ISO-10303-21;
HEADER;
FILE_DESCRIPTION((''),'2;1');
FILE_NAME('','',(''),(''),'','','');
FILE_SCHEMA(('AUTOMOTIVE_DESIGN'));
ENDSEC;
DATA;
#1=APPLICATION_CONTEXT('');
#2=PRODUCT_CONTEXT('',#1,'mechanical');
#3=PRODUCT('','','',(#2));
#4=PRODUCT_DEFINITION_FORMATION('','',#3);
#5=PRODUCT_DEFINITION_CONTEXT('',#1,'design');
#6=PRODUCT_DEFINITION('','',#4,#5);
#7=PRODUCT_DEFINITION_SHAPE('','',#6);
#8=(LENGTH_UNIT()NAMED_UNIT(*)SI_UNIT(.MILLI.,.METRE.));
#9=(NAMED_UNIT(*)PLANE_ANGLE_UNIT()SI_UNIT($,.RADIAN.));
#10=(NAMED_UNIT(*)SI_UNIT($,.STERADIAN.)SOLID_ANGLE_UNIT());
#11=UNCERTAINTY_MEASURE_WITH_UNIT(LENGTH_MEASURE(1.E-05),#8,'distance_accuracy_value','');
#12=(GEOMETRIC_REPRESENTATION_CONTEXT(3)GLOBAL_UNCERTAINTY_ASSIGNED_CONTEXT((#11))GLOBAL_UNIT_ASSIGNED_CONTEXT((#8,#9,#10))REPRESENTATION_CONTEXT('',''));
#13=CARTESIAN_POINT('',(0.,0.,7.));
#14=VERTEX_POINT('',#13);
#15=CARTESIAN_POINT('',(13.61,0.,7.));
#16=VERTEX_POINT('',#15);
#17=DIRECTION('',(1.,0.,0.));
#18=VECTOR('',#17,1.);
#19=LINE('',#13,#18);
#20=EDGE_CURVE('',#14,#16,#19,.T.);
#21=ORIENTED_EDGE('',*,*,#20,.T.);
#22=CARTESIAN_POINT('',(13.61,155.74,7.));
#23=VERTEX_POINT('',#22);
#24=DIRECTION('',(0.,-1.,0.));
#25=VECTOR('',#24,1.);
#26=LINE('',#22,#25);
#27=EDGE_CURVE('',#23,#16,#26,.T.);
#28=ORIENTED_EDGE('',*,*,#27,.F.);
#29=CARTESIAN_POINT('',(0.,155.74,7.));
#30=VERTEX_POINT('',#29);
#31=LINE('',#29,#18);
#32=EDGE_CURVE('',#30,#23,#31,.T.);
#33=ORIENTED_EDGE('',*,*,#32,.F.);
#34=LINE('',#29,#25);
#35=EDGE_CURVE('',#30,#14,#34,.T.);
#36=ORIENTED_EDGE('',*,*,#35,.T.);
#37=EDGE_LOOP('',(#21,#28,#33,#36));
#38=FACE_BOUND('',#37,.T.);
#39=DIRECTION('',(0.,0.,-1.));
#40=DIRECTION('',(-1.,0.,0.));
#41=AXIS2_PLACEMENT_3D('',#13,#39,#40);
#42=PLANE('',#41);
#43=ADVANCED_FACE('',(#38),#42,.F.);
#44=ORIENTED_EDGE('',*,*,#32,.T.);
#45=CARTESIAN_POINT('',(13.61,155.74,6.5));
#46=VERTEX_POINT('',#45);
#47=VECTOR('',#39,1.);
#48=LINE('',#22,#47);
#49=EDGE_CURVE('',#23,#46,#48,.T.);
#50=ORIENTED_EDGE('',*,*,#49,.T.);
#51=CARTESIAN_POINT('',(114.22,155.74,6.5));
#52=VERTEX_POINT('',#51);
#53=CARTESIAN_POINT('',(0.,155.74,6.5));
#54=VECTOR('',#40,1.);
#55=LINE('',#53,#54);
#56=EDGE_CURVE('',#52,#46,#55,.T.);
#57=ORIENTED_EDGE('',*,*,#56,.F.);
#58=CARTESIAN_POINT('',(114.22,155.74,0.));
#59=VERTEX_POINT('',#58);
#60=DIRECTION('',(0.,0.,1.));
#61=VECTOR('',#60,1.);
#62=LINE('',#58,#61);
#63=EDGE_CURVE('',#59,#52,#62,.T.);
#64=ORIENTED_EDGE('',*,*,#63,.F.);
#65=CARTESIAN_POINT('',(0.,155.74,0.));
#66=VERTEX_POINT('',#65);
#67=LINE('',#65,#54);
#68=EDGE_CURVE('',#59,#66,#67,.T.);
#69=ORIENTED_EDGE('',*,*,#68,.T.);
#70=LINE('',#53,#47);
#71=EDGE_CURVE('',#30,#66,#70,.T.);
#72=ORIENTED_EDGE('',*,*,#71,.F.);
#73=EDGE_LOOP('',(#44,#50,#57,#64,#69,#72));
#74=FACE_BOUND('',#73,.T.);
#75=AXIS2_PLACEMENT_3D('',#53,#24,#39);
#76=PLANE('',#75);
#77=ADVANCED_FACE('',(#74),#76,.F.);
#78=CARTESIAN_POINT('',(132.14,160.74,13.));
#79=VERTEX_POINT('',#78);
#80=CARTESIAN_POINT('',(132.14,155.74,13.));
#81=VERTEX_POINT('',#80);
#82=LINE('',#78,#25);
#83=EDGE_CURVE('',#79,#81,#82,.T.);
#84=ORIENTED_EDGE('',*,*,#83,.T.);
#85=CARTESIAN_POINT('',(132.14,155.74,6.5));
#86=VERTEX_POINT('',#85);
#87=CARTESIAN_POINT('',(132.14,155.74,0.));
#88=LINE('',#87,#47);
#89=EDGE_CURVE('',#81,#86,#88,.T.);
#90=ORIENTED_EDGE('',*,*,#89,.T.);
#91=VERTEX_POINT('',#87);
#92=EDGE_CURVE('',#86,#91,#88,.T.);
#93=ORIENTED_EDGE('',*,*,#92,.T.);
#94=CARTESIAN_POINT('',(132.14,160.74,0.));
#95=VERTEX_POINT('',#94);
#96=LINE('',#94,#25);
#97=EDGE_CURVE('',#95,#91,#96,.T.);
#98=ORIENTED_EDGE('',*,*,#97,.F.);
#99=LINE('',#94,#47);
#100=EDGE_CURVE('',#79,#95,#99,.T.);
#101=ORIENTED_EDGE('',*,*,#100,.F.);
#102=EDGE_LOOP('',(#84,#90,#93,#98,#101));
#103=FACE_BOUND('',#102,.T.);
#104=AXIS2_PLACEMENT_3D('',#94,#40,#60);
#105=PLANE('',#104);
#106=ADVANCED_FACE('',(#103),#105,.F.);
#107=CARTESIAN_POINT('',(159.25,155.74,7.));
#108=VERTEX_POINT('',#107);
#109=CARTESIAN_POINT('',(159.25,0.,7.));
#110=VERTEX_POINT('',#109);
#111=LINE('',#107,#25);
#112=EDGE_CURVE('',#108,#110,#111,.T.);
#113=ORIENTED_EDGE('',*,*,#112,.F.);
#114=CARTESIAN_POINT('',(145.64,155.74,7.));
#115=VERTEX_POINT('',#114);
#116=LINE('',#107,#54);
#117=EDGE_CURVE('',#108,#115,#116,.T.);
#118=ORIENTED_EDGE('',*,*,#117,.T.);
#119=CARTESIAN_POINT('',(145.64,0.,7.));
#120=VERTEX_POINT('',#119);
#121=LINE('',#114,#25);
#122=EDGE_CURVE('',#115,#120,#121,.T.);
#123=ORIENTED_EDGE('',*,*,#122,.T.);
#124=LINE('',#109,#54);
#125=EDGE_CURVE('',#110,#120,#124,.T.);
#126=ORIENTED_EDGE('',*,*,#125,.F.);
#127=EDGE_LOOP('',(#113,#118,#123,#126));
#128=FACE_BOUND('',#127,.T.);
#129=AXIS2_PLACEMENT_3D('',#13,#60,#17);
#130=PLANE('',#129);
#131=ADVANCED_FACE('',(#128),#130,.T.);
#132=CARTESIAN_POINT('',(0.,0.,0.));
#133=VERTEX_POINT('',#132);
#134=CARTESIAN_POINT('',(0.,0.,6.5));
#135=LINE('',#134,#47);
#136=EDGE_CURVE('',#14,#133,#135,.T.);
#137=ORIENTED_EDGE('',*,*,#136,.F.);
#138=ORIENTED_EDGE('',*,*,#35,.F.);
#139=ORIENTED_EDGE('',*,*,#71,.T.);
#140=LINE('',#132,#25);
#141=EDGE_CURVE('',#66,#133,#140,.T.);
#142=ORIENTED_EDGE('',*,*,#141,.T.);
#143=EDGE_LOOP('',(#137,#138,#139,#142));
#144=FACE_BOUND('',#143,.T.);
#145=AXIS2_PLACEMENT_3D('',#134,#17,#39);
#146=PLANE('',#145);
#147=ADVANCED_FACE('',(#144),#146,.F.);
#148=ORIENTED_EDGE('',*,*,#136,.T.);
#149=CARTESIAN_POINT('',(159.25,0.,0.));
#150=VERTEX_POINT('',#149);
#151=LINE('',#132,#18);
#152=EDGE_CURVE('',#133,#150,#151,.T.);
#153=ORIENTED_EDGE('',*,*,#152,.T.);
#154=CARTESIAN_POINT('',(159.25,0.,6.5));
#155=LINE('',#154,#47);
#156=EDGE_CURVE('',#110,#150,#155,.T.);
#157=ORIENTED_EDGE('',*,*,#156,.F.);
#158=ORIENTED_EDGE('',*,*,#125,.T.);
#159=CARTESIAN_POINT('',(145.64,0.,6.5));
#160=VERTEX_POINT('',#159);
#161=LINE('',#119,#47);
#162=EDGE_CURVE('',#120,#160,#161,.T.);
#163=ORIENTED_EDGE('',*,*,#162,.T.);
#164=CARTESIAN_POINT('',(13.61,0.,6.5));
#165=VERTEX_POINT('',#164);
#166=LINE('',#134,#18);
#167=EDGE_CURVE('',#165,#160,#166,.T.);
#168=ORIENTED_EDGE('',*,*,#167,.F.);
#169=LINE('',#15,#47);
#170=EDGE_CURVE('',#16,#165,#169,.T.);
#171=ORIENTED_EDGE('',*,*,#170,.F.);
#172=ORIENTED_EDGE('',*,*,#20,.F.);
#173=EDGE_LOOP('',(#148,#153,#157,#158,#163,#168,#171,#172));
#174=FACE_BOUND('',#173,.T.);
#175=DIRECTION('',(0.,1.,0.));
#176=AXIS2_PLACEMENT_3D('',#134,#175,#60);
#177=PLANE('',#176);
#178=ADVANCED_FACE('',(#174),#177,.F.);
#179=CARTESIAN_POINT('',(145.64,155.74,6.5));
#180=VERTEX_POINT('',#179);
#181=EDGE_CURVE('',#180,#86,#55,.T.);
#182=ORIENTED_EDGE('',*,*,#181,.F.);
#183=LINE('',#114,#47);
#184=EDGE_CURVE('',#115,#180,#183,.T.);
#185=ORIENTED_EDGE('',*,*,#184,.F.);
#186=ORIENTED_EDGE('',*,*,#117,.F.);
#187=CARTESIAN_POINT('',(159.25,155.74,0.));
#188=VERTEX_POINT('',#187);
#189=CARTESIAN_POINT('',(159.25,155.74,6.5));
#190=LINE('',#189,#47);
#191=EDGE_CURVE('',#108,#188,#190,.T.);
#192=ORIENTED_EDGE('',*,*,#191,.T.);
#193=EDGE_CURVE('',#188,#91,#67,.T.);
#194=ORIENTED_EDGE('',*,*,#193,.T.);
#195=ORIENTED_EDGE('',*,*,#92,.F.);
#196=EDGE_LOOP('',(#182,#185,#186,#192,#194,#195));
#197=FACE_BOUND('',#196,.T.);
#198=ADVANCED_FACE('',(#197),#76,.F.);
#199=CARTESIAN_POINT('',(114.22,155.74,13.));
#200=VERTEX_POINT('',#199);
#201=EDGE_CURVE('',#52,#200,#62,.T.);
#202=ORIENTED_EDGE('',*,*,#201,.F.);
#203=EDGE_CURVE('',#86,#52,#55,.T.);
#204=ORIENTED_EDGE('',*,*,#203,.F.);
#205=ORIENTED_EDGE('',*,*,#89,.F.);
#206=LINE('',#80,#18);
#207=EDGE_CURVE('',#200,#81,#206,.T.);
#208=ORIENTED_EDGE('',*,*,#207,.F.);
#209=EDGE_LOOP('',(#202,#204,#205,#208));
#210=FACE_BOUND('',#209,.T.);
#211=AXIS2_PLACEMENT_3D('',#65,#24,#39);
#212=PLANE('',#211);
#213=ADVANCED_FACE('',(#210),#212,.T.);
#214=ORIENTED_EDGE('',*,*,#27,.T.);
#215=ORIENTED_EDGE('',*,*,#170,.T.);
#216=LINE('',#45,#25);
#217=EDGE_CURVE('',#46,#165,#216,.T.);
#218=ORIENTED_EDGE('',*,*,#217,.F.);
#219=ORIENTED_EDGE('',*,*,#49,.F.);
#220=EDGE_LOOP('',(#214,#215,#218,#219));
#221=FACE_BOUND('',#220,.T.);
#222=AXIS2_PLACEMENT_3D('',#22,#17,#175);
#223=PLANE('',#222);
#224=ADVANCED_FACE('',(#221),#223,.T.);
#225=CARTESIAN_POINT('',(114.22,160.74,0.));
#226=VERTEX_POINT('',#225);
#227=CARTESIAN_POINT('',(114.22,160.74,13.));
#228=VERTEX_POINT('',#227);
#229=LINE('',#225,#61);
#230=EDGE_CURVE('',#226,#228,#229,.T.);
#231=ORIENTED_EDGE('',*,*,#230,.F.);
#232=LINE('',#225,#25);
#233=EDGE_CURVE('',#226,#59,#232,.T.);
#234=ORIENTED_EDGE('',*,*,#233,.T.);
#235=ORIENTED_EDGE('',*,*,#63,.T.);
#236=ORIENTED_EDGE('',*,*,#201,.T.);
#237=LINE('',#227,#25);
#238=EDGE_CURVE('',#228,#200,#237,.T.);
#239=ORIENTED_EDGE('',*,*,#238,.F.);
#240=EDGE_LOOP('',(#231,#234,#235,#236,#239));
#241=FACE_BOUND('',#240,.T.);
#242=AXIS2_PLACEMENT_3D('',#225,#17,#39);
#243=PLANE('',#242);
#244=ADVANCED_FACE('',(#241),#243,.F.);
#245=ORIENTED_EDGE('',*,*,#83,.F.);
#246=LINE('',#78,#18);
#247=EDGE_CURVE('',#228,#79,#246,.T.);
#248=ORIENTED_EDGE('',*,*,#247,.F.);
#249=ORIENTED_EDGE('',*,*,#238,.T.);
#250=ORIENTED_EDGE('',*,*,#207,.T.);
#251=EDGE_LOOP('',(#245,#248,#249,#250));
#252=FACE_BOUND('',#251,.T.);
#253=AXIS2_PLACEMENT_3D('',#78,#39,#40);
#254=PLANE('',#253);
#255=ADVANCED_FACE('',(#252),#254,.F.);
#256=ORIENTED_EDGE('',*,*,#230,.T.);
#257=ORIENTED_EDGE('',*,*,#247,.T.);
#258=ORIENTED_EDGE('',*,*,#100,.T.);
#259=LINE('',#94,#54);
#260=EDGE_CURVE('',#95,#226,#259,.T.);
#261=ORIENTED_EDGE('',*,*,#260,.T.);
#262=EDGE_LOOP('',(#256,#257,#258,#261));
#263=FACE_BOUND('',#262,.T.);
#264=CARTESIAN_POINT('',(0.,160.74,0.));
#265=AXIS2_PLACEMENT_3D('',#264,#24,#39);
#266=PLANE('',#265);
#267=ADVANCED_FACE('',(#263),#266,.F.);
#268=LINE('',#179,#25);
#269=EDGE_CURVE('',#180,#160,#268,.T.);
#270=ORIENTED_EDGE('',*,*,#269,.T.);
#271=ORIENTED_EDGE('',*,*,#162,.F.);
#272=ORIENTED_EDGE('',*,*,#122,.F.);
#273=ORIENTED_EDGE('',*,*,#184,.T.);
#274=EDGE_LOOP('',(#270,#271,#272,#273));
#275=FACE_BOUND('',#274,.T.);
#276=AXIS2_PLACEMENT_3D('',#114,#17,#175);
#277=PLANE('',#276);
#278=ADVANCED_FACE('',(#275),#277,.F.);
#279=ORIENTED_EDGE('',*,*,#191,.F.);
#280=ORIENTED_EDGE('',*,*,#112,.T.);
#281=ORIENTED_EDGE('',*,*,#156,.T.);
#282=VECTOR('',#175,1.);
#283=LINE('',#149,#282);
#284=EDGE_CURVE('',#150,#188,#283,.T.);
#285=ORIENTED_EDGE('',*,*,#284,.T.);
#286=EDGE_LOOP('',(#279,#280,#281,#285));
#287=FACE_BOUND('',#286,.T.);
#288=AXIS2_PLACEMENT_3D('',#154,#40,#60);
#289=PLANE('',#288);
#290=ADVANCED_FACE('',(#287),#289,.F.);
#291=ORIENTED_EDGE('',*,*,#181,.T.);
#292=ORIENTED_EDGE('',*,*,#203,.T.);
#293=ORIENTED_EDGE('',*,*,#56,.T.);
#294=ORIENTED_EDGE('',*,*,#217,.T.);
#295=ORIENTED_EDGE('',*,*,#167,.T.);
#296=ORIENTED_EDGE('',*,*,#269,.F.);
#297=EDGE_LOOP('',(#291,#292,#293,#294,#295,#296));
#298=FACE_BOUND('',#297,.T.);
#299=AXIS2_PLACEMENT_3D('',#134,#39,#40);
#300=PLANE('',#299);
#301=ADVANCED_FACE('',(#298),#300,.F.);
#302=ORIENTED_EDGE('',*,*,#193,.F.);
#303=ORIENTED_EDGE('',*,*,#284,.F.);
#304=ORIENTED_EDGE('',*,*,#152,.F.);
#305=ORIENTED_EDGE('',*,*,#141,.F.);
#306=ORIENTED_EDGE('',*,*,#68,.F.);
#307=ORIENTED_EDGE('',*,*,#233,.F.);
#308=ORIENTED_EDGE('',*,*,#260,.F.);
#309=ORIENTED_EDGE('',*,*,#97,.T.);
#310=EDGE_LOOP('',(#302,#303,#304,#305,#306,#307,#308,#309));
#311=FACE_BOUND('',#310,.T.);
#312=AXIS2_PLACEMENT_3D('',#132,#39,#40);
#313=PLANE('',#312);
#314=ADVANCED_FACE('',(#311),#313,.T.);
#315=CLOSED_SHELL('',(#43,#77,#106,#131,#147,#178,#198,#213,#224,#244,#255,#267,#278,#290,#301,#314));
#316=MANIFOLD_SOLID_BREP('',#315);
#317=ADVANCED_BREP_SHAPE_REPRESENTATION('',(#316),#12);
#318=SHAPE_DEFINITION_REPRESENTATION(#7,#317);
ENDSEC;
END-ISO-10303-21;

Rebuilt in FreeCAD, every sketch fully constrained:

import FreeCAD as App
import Part
import Sketcher
from FreeCAD import Vector

doc = App.newDocument("Part")
params = doc.addObject("Spreadsheet::Sheet", "Params")
for row, (alias, value) in enumerate([
    ("sketch1_width", "159.25 mm"),
    ("sketch1_height", "155.74 mm"),
    ("pad1_length", "6.5 mm"),
    ("sketch2_width", "13.61 mm"),
    ("sketch2_height", "155.74 mm"),
    ("pad2_length", "0.5 mm"),
    ("sketch3_height", "13 mm"),
    ("sketch3_width", "17.92 mm"),
    ("pad3_length", "5 mm"),
], start=1):
    params.set(f"A{row}", alias)
    params.set(f"B{row}", "=" + value)
    params.setAlias(f"B{row}", alias)

body = doc.addObject("PartDesign::Body", "Body")

sketch1 = body.newObject("Sketcher::SketchObject", "Sketch")
sketch1.AttachmentSupport = (doc.getObject("XY_Plane"), [""])
sketch1.MapMode = "FlatFace"
sketch1.addGeometry([
    Part.LineSegment(Vector(0, 156, 0), Vector(0, 0, 0)),
    Part.LineSegment(Vector(0, 0, 0), Vector(159, 0, 0)),
    Part.LineSegment(Vector(159, 0, 0), Vector(159, 156, 0)),
    Part.LineSegment(Vector(159, 156, 0), Vector(0, 156, 0)),
], False)
sketch1.addConstraint([
    Sketcher.Constraint("Coincident", 0, 2, 1, 1),
    Sketcher.Constraint("Coincident", 1, 2, 2, 1),
    Sketcher.Constraint("Coincident", 2, 2, 3, 1),
    Sketcher.Constraint("Coincident", 3, 2, 0, 1),
    Sketcher.Constraint("Vertical", 0),
    Sketcher.Constraint("Horizontal", 1),
    Sketcher.Constraint("Vertical", 2),
    Sketcher.Constraint("Horizontal", 3),
    Sketcher.Constraint("Coincident", 0, 2, -1, 1),
    Sketcher.Constraint("DistanceX", 1, 1, 1, 2, 159.25),
    Sketcher.Constraint("DistanceY", 0, 2, 0, 1, 155.74),
])
sketch1.setExpression("Constraints[9]", "Params.sketch1_width")
sketch1.setExpression("Constraints[10]", "Params.sketch1_height")
pad1 = body.newObject("PartDesign::Pad", "Pad")
pad1.Profile = sketch1
pad1.setExpression("Length", "Params.pad1_length")

sketch2 = body.newObject("Sketcher::SketchObject", "Sketch001")
sketch2.AttachmentSupport = (doc.getObject("XY_Plane"), [""])
sketch2.MapMode = "FlatFace"
sketch2.AttachmentOffset = App.Placement(Vector(0, 0, 6.5), App.Rotation())
sketch2.addGeometry([
    Part.LineSegment(Vector(0, 156, 0), Vector(0, 0, 0)),
    Part.LineSegment(Vector(0, 0, 0), Vector(14, 0, 0)),
    Part.LineSegment(Vector(14, 0, 0), Vector(14, 156, 0)),
    Part.LineSegment(Vector(14, 156, 0), Vector(0, 156, 0)),
    Part.LineSegment(Vector(146, 156, 0), Vector(146, 0, 0)),
    Part.LineSegment(Vector(146, 0, 0), Vector(159, 0, 0)),
    Part.LineSegment(Vector(159, 0, 0), Vector(159, 156, 0)),
    Part.LineSegment(Vector(159, 156, 0), Vector(146, 156, 0)),
], False)
sketch2.addConstraint([
    Sketcher.Constraint("Coincident", 0, 2, 1, 1),
    Sketcher.Constraint("Coincident", 1, 2, 2, 1),
    Sketcher.Constraint("Coincident", 2, 2, 3, 1),
    Sketcher.Constraint("Coincident", 3, 2, 0, 1),
    Sketcher.Constraint("Coincident", 4, 2, 5, 1),
    Sketcher.Constraint("Coincident", 5, 2, 6, 1),
    Sketcher.Constraint("Coincident", 6, 2, 7, 1),
    Sketcher.Constraint("Coincident", 7, 2, 4, 1),
    Sketcher.Constraint("Vertical", 0),
    Sketcher.Constraint("Horizontal", 1),
    Sketcher.Constraint("Vertical", 2),
    Sketcher.Constraint("Horizontal", 3),
    Sketcher.Constraint("Vertical", 4),
    Sketcher.Constraint("Horizontal", 5),
    Sketcher.Constraint("Vertical", 6),
    Sketcher.Constraint("Horizontal", 7),
    Sketcher.Constraint("Coincident", 0, 2, -1, 1),
    Sketcher.Constraint("PointOnObject", 4, 2, -1),
    Sketcher.Constraint("Horizontal", 3, 2, 6, 2),
    Sketcher.Constraint("Equal", 3, 5),
    Sketcher.Constraint("DistanceX", 1, 1, 1, 2, 13.61),
    Sketcher.Constraint("DistanceY", 0, 2, 0, 1, 155.74),
    Sketcher.Constraint("DistanceX", -1, 1, 4, 2, 145.64),
])
sketch2.setExpression("Constraints[20]", "Params.sketch2_width")
sketch2.setExpression("Constraints[21]", "Params.sketch2_height")
pad2 = body.newObject("PartDesign::Pad", "Pad001")
pad2.Profile = sketch2
pad2.setExpression("Length", "Params.pad2_length")

sketch3 = body.newObject("Sketcher::SketchObject", "Sketch002")
sketch3.AttachmentSupport = (doc.getObject("XZ_Plane"), [""])
sketch3.MapMode = "FlatFace"
sketch3.AttachmentOffset = App.Placement(Vector(0, 0, -155.74), App.Rotation())
sketch3.addGeometry([
    Part.LineSegment(Vector(114, 0, 0), Vector(114, 13, 0)),
    Part.LineSegment(Vector(114, 13, 0), Vector(132, 13, 0)),
    Part.LineSegment(Vector(132, 13, 0), Vector(132, 0, 0)),
    Part.LineSegment(Vector(132, 0, 0), Vector(114, 0, 0)),
], False)
sketch3.addConstraint([
    Sketcher.Constraint("Coincident", 0, 2, 1, 1),
    Sketcher.Constraint("Coincident", 1, 2, 2, 1),
    Sketcher.Constraint("Coincident", 2, 2, 3, 1),
    Sketcher.Constraint("Coincident", 3, 2, 0, 1),
    Sketcher.Constraint("Vertical", 0),
    Sketcher.Constraint("Horizontal", 1),
    Sketcher.Constraint("Vertical", 2),
    Sketcher.Constraint("Horizontal", 3),
    Sketcher.Constraint("PointOnObject", 2, 2, -1),
    Sketcher.Constraint("DistanceY", 0, 1, 0, 2, 13.0),
    Sketcher.Constraint("DistanceX", 1, 1, 1, 2, 17.92),
    Sketcher.Constraint("DistanceX", -1, 1, 0, 2, 114.22),
])
sketch3.setExpression("Constraints[9]", "Params.sketch3_height")
sketch3.setExpression("Constraints[10]", "Params.sketch3_width")
pad3 = body.newObject("PartDesign::Pad", "Pad002")
pad3.Profile = sketch3
pad3.setExpression("Length", "Params.pad3_length")
pad3.Reversed = True

doc.recompute()
